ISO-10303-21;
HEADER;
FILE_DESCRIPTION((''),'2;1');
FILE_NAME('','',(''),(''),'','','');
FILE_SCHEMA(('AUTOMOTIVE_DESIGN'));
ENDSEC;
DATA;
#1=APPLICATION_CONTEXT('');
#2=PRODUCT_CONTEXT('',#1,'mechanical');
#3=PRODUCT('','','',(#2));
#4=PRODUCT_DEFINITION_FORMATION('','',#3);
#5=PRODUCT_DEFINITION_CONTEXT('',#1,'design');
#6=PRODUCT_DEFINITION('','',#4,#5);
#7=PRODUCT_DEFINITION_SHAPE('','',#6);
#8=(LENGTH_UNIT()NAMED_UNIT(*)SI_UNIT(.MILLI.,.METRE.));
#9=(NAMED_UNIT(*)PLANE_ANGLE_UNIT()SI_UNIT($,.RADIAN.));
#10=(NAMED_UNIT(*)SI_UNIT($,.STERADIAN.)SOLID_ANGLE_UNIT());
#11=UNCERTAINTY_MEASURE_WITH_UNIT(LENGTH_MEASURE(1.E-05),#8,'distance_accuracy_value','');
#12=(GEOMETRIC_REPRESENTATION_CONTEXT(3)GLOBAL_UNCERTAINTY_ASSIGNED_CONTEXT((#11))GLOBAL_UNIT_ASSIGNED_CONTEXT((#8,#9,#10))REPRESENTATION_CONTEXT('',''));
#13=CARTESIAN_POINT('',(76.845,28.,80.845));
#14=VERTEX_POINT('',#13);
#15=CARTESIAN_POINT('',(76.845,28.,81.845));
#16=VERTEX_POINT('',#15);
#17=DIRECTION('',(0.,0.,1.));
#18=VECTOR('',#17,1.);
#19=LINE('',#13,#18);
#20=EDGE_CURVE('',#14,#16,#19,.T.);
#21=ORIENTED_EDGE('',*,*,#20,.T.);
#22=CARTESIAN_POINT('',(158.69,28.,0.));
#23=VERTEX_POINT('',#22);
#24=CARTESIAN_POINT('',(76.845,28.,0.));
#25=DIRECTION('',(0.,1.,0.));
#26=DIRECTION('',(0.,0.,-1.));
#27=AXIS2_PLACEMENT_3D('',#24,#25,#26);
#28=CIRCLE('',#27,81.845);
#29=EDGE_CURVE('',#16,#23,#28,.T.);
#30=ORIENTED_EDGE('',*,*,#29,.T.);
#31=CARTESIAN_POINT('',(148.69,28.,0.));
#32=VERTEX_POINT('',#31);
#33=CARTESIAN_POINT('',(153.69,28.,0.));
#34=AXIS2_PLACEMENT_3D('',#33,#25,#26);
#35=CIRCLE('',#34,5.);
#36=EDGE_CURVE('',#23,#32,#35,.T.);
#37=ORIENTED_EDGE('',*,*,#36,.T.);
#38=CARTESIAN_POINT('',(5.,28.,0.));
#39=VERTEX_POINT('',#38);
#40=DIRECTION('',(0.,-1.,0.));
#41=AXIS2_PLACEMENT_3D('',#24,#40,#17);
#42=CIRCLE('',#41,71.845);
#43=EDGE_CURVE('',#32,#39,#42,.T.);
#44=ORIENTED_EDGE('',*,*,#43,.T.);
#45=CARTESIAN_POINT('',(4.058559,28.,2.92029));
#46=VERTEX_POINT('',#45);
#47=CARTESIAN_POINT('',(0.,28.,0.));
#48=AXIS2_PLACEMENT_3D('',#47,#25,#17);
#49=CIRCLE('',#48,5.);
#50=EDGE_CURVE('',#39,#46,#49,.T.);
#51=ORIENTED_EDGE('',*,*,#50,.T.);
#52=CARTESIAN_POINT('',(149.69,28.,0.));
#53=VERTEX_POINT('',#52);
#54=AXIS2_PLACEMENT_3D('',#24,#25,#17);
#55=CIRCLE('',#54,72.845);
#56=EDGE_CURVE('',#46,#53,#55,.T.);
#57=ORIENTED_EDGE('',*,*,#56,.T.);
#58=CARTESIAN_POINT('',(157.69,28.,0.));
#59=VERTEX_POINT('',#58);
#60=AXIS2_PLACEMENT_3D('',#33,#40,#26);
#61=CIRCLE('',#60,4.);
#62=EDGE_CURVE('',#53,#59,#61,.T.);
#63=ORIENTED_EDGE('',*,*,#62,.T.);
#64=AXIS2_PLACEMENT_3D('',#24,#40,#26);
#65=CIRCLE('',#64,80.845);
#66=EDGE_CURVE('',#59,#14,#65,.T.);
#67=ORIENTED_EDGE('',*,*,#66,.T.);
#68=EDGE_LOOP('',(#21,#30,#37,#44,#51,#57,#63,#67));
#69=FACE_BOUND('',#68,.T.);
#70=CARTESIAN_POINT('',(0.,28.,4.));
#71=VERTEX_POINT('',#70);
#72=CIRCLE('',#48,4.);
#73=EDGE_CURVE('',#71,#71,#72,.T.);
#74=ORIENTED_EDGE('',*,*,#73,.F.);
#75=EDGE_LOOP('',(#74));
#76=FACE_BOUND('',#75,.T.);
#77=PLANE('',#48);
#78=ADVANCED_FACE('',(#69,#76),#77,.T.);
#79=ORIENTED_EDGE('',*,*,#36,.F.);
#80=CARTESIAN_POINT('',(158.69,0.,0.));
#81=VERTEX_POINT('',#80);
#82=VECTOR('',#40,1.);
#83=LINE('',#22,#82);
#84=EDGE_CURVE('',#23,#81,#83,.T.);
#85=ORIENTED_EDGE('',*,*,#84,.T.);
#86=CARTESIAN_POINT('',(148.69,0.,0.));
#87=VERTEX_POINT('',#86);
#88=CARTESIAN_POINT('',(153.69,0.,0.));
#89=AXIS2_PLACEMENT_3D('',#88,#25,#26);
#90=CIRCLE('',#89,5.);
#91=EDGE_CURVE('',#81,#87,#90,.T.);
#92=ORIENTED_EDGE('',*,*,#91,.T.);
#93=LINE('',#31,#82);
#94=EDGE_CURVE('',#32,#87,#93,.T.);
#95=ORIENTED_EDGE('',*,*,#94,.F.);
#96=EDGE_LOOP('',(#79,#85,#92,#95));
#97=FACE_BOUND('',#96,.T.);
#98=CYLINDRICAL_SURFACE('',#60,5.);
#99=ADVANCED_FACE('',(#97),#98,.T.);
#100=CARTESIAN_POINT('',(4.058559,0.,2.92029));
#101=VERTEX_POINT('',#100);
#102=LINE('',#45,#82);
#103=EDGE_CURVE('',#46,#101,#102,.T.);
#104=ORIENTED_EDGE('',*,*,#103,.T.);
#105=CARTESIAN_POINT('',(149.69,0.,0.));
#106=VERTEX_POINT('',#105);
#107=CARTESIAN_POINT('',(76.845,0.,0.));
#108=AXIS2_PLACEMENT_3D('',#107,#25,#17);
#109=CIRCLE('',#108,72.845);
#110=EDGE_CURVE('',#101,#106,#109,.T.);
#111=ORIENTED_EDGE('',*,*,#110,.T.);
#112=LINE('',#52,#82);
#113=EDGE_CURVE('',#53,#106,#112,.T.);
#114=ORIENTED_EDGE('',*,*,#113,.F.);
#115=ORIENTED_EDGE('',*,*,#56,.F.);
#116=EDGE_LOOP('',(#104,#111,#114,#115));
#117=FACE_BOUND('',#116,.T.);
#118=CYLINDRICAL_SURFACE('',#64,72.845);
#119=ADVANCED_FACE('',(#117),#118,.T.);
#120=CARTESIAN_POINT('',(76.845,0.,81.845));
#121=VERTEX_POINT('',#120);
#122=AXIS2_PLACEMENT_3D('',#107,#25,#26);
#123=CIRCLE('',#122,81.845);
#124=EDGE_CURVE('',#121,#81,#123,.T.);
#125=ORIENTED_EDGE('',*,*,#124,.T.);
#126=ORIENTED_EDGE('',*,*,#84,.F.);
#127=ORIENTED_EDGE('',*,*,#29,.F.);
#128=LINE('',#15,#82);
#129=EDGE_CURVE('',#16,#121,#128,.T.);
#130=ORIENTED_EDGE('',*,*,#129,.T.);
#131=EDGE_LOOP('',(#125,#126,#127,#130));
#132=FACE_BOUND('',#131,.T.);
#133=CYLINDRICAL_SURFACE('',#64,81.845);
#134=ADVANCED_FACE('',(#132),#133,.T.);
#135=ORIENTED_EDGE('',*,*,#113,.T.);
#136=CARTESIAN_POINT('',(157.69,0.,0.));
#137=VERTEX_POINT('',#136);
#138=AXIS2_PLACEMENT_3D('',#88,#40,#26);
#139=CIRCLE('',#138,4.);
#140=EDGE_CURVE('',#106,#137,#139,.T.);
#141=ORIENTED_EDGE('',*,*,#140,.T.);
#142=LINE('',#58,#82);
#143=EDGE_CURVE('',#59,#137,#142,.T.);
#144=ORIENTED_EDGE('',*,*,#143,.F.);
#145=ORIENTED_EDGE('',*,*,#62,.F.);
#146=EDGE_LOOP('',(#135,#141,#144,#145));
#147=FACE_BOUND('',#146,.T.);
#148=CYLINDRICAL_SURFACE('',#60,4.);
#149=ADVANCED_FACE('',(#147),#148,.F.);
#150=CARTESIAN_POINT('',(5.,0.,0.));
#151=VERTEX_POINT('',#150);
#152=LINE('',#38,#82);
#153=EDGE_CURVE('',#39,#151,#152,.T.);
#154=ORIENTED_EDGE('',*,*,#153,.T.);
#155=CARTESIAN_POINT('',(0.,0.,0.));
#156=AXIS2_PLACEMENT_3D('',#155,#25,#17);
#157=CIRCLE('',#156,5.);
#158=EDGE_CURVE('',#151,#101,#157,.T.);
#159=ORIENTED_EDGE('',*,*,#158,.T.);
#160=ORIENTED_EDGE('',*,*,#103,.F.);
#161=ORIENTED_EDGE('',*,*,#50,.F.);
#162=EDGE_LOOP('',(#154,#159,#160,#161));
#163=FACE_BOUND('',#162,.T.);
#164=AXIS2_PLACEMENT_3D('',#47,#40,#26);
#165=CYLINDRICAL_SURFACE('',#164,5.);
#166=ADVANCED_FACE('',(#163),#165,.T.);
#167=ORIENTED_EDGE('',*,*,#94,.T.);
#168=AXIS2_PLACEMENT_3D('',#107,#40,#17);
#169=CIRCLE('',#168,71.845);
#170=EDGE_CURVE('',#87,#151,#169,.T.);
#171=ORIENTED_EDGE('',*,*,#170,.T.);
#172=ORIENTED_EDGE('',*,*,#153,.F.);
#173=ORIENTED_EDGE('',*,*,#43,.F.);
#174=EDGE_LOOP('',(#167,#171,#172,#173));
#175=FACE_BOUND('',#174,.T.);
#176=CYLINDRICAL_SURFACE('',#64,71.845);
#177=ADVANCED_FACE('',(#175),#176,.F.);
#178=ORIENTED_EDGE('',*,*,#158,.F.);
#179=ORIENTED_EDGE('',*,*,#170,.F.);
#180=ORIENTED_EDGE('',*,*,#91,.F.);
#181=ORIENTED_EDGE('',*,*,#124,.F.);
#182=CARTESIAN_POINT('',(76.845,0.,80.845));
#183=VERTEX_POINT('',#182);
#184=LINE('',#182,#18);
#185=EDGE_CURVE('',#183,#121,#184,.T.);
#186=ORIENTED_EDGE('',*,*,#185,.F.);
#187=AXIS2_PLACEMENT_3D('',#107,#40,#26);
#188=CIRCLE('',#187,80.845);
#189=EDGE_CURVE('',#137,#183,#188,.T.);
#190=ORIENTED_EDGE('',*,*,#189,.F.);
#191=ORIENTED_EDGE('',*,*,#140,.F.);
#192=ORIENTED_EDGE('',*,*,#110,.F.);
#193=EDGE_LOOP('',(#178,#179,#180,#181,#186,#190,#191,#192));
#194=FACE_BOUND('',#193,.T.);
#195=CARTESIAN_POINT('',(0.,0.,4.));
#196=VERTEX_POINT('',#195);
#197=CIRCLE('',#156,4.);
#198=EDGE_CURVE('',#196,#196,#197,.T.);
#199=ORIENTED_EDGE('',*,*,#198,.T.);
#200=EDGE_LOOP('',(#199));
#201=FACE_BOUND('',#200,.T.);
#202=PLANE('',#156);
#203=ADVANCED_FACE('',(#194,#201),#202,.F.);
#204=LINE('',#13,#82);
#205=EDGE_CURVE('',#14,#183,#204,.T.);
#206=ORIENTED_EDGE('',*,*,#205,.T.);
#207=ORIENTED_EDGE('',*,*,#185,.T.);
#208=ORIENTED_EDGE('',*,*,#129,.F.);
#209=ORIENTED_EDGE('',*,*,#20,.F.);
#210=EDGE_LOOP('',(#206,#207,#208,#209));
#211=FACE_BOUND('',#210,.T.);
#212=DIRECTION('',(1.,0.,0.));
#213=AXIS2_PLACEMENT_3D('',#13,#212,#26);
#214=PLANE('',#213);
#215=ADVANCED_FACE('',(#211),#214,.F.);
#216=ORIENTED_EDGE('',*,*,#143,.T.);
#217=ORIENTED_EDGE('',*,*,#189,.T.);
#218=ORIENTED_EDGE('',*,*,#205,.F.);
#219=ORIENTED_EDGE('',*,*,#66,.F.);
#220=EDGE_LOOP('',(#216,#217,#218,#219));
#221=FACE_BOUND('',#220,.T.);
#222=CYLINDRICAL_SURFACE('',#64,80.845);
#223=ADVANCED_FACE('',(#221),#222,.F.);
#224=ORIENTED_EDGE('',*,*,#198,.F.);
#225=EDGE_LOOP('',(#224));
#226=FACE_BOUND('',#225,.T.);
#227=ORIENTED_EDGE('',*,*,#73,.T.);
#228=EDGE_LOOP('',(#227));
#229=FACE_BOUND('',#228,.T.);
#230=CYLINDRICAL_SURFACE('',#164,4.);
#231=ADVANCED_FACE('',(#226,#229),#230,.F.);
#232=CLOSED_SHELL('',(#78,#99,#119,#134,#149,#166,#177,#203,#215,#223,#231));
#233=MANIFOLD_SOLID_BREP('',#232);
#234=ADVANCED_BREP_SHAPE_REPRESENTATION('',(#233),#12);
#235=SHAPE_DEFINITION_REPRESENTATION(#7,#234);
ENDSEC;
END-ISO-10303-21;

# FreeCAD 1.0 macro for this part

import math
import FreeCAD as App
import Part
import Sketcher

V = App.Vector

doc = App.newDocument("Part")
body = doc.addObject("PartDesign::Body", "Body")

sketch1 = doc.addObject("Sketcher::SketchObject", "Sketch")
body.addObject(sketch1)
sketch1.AttachmentSupport = (doc.XZ_Plane, [""])
sketch1.MapMode = "FlatFace"
sketch1.addGeometry([
    Part.LineSegment(V(76.845, 80.845, 0), V(76.845, 81.845, 0)),
    Part.ArcOfCircle(Part.Circle(V(76.845, 0, 0), V(0, 0, 1), 81.845), math.radians(0), math.radians(90)),
    Part.ArcOfCircle(Part.Circle(V(153.69, 0, 0), V(0, 0, 1), 5), math.radians(180), math.radians(360)),
    Part.ArcOfCircle(Part.Circle(V(76.845, 0, 0), V(0, 0, 1), 71.845), math.radians(0), math.radians(180)),
    Part.ArcOfCircle(Part.Circle(V(0, 0, 0), V(0, 0, 1), 5), math.radians(35.736474), math.radians(360)),
    Part.ArcOfCircle(Part.Circle(V(76.845, 0, 0), V(0, 0, 1), 72.845), math.radians(0), math.radians(177.702448)),
    Part.ArcOfCircle(Part.Circle(V(153.69, 0, 0), V(0, 0, 1), 4), math.radians(180), math.radians(360)),
    Part.ArcOfCircle(Part.Circle(V(76.845, 0, 0), V(0, 0, 1), 80.845), math.radians(0), math.radians(90)),
    Part.Circle(V(0, 0, 0), V(0, 0, 1), 4),
], False)
sketch1.addConstraint([
    Sketcher.Constraint("Coincident", 0, 2, 1, 2),
    Sketcher.Constraint("Tangent", 1, 1, 2, 2),
    Sketcher.Constraint("Tangent", 2, 1, 3, 1),
    Sketcher.Constraint("Tangent", 3, 2, 4, 2),
    Sketcher.Constraint("Coincident", 4, 1, 5, 2),
    Sketcher.Constraint("Tangent", 5, 1, 6, 1),
    Sketcher.Constraint("Tangent", 6, 2, 7, 1),
    Sketcher.Constraint("Coincident", 7, 2, 0, 1),
    Sketcher.Constraint("Vertical", 0),
    Sketcher.Constraint("Coincident", 4, 3, -1, 1),
    Sketcher.Constraint("Coincident", 8, 3, -1, 1),
    Sketcher.Constraint("Coincident", 3, 3, 1, 3),
    Sketcher.Constraint("Coincident", 5, 3, 1, 3),
    Sketcher.Constraint("Coincident", 6, 3, 2, 3),
    Sketcher.Constraint("Coincident", 7, 3, 1, 3),
    Sketcher.Constraint("Equal", 2, 4),
    Sketcher.Constraint("Equal", 6, 8),
    Sketcher.Constraint("PointOnObject", 1, 3, -1),
    Sketcher.Constraint("PointOnObject", 2, 3, -1),
    Sketcher.Constraint("Vertical", 7, 3, 0, 2),
    Sketcher.Constraint("Diameter", 8, 8.0),
    Sketcher.Constraint("Radius", 2, 5.0),
    Sketcher.Constraint("Radius", 1, 81.845),
])
pad1 = doc.addObject("PartDesign::Pad", "Pad")
body.addObject(pad1)
pad1.Profile = sketch1
pad1.Length = 28
pad1.Reversed = True

doc.recompute()
